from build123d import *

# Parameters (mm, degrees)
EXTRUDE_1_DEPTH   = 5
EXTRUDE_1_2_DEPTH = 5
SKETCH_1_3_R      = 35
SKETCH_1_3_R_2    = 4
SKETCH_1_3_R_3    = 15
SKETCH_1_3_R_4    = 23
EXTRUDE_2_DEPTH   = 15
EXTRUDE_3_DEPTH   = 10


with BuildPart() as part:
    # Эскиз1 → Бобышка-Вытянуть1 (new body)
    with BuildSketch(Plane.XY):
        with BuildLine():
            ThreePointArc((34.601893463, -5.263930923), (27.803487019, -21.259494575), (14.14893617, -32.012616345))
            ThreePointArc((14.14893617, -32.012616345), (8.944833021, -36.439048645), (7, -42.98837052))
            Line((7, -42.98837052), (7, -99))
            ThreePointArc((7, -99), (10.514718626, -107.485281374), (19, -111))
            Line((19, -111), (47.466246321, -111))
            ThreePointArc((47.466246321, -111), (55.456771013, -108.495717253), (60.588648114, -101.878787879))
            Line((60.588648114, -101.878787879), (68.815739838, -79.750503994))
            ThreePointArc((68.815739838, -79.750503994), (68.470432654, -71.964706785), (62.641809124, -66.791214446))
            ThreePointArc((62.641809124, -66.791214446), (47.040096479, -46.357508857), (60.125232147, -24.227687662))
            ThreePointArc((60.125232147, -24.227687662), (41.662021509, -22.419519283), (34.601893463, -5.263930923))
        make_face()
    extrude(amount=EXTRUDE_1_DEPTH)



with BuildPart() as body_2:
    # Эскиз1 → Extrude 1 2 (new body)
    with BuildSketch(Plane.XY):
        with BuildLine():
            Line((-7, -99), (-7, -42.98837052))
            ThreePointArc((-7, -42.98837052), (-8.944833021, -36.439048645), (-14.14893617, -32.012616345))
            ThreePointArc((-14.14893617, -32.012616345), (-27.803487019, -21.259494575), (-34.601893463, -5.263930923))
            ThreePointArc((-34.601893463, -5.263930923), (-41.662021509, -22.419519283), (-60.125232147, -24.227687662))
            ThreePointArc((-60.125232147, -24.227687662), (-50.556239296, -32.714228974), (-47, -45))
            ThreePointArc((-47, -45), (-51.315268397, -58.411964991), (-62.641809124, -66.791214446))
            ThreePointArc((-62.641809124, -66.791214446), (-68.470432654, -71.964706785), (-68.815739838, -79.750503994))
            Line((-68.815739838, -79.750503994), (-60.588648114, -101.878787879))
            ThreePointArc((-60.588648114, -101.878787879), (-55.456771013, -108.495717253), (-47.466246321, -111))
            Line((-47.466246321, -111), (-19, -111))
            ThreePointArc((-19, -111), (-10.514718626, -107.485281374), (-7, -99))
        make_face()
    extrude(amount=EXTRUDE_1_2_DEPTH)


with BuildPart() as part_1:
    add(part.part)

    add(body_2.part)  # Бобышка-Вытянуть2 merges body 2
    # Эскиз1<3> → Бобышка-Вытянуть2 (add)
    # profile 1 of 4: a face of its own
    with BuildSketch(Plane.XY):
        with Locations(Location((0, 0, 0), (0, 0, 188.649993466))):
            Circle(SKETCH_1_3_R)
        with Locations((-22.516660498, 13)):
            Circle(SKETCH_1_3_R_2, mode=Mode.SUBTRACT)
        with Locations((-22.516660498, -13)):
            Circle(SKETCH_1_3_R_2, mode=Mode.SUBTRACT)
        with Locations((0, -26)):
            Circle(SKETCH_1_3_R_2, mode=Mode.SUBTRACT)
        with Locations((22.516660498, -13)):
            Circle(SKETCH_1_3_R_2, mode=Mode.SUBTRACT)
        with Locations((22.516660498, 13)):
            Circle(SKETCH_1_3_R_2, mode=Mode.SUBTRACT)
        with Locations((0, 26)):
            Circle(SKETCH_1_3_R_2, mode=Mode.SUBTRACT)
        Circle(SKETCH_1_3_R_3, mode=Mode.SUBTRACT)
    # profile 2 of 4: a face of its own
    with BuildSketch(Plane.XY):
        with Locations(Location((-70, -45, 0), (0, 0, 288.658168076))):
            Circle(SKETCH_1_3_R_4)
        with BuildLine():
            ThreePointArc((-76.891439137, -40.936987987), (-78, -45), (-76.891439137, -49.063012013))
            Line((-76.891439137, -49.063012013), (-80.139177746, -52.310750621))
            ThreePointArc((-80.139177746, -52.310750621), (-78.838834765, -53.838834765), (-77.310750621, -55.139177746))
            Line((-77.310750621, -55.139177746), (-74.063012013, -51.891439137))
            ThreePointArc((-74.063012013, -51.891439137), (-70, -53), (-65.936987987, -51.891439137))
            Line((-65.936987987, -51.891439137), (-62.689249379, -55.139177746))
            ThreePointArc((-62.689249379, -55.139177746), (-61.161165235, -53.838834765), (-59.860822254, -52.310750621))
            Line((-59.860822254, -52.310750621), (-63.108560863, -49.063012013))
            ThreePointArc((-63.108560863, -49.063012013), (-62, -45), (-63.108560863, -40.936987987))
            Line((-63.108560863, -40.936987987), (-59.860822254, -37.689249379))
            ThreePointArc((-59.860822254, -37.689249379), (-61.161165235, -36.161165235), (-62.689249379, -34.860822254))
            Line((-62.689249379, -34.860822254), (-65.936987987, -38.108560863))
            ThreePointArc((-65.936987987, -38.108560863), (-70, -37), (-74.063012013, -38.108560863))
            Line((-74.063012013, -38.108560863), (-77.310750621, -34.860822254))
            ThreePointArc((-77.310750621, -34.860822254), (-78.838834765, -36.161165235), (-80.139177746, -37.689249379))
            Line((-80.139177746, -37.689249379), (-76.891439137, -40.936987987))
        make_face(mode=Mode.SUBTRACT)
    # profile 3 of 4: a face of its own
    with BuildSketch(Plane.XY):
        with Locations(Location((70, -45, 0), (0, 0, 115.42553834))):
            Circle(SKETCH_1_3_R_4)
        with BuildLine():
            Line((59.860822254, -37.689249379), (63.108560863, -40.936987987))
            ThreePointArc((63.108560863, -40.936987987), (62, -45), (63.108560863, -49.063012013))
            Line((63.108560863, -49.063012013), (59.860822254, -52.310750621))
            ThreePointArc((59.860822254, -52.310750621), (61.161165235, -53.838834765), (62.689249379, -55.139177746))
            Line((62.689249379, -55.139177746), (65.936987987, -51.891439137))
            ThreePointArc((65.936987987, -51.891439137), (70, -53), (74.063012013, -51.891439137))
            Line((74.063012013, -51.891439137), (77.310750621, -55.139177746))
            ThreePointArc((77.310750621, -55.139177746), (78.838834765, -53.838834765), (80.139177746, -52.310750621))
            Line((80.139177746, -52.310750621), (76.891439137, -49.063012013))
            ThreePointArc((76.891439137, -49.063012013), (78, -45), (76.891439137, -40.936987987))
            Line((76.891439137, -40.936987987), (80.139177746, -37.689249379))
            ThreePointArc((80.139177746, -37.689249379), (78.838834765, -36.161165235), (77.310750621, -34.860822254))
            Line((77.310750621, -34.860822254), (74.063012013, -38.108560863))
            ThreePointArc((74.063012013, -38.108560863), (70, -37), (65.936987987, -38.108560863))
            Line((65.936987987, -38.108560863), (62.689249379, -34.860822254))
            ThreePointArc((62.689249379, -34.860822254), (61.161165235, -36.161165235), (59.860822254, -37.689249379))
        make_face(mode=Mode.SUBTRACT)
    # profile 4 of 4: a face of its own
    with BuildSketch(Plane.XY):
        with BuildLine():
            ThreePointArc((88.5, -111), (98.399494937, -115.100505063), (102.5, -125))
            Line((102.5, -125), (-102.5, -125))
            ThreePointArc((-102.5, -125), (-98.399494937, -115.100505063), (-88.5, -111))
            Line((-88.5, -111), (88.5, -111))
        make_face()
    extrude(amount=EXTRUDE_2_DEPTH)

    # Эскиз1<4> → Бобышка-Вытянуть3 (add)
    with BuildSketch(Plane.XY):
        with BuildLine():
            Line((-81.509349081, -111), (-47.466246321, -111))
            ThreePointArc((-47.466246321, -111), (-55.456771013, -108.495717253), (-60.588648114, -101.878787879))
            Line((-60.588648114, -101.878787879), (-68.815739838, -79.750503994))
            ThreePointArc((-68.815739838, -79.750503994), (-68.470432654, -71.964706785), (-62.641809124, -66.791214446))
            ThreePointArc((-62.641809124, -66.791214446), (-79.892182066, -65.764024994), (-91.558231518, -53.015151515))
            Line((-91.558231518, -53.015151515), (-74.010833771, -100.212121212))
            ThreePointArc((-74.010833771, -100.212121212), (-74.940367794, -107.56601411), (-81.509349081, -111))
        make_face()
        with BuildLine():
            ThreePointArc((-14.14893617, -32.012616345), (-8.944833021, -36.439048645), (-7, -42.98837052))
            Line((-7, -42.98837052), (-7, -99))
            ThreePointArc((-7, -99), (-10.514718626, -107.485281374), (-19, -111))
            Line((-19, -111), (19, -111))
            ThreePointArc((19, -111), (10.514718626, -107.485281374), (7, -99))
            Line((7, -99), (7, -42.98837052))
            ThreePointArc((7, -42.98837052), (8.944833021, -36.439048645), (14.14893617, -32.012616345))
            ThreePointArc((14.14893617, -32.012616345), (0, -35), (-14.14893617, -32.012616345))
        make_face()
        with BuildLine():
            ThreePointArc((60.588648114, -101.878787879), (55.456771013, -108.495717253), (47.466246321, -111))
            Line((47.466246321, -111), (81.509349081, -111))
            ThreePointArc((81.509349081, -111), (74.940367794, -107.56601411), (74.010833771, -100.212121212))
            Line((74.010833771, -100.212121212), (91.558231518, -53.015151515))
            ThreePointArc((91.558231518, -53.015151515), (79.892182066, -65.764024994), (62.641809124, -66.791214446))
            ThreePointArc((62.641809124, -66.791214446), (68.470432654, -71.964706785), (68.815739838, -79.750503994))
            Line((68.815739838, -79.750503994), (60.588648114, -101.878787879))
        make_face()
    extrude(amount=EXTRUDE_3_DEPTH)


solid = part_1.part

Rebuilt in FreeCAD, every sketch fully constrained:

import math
import FreeCAD as App
import Part
import Sketcher
from FreeCAD import Vector
Q = App.Units.Quantity

doc = App.newDocument("Part")
body = doc.addObject("PartDesign::Body", "Body")

sketch1 = body.newObject("Sketcher::SketchObject", "Sketch")
sketch1.AttachmentSupport = (doc.getObject("XY_Plane"), [""])
sketch1.MapMode = "FlatFace"
sketch1.addGeometry([
    Part.ArcOfCircle(Part.Circle(Vector(0, 0, 0), Vector(0, 0, 1), 35), math.radians(-66.15553), math.radians(-8.649993)),
    Part.ArcOfCircle(Part.Circle(Vector(19, -42.988371, 0), Vector(0, 0, 1), 12), math.radians(113.84447), math.radians(180)),
    Part.LineSegment(Vector(7, -42.988371, 0), Vector(7, -99, 0)),
    Part.ArcOfCircle(Part.Circle(Vector(19, -99, 0), Vector(0, 0, 1), 12), math.radians(-180), math.radians(-90)),
    Part.LineSegment(Vector(19, -111, 0), Vector(47.466246, -111, 0)),
    Part.ArcOfCircle(Part.Circle(Vector(47.466246, -97, 0), Vector(0, 0, 1), 14), math.radians(-90), math.radians(-20.39467)),
    Part.LineSegment(Vector(60.588648, -101.878788, 0), Vector(68.81574, -79.750504, 0)),
    Part.ArcOfCircle(Part.Circle(Vector(59.442596, -76.265656, 0), Vector(0, 0, 1), 10), math.radians(-20.39467), math.radians(71.341832)),
    Part.ArcOfCircle(Part.Circle(Vector(70, -45, 0), Vector(0, 0, 1), 23), math.radians(115.425538), math.radians(251.341832)),
    Part.ArcOfCircle(Part.Circle(Vector(52.397153, -7.971095, 0), Vector(0, 0, 1), 18), math.radians(171.350007), math.radians(295.425538)),
], False)
sketch1.addConstraint([
    Sketcher.Constraint("Tangent", 0, 1, 1, 1),
    Sketcher.Constraint("Tangent", 1, 2, 2, 1),
    Sketcher.Constraint("Tangent", 2, 2, 3, 1),
    Sketcher.Constraint("Tangent", 3, 2, 4, 1),
    Sketcher.Constraint("Tangent", 4, 2, 5, 1),
    Sketcher.Constraint("Tangent", 5, 2, 6, 1),
    Sketcher.Constraint("Tangent", 6, 2, 7, 1),
    Sketcher.Constraint("Tangent", 7, 2, 8, 2),
    Sketcher.Constraint("Tangent", 8, 1, 9, 2),
    Sketcher.Constraint("Tangent", 9, 1, 0, 2),
    Sketcher.Constraint("Vertical", 2),
    Sketcher.Constraint("Horizontal", 4),
    Sketcher.Constraint("Coincident", 0, 3, -1, 1),
    Sketcher.Constraint("Equal", 1, 3),
    Sketcher.Constraint("Radius", 0, Q("35 mm")),
    Sketcher.Constraint("Radius", 1, Q("12 mm")),
    Sketcher.Constraint("Radius", 5, Q("14 mm")),
    Sketcher.Constraint("Radius", 7, Q("10 mm")),
    Sketcher.Constraint("Radius", 8, Q("23 mm")),
    Sketcher.Constraint("Radius", 9, Q("18 mm")),
    Sketcher.Constraint("DistanceX", -1, 1, 1, 3, Q("19 mm")),
    Sketcher.Constraint("DistanceY", 3, 3, -1, 1, Q("99 mm")),
    Sketcher.Constraint("DistanceX", -1, 1, 8, 3, Q("70 mm")),
    Sketcher.Constraint("DistanceY", 8, 3, -1, 1, Q("45 mm")),
    Sketcher.Constraint("DistanceX", 5, 3, 5, 2, Q("13.122402 mm")),
    Sketcher.Constraint("DistanceX", 4, 1, 4, 2, Q("28.466246 mm")),
])
pad1 = body.newObject("PartDesign::Pad", "Pad")
pad1.Profile = sketch1
pad1.Length = 5
body2 = doc.addObject("PartDesign::Body", "Body001")

sketch2 = body2.newObject("Sketcher::SketchObject", "Sketch001")
sketch2.AttachmentSupport = (doc.getObject("XY_Plane001"), [""])
sketch2.MapMode = "FlatFace"
sketch2.addGeometry([
    Part.LineSegment(Vector(-7, -99, 0), Vector(-7, -42.988371, 0)),
    Part.ArcOfCircle(Part.Circle(Vector(-19, -42.988371, 0), Vector(0, 0, 1), 12), math.radians(0), math.radians(66.15553)),
    Part.ArcOfCircle(Part.Circle(Vector(0, 0, 0), Vector(0, 0, 1), 35), math.radians(-171.350007), math.radians(-113.84447)),
    Part.ArcOfCircle(Part.Circle(Vector(-52.397153, -7.971095, 0), Vector(0, 0, 1), 18), math.radians(-115.425538), math.radians(8.649993)),
    Part.ArcOfCircle(Part.Circle(Vector(-70, -45, 0), Vector(0, 0, 1), 23), math.radians(0), math.radians(64.574462)),
    Part.ArcOfCircle(Part.Circle(Vector(-70, -45, 0), Vector(0, 0, 1), 23), math.radians(-71.341832), math.radians(0)),
    Part.ArcOfCircle(Part.Circle(Vector(-59.442596, -76.265656, 0), Vector(0, 0, 1), 10), math.radians(108.658168), math.radians(200.39467)),
    Part.LineSegment(Vector(-68.81574, -79.750504, 0), Vector(-60.588648, -101.878788, 0)),
    Part.ArcOfCircle(Part.Circle(Vector(-47.466246, -97, 0), Vector(0, 0, 1), 14), math.radians(-159.60533), math.radians(-90)),
    Part.LineSegment(Vector(-47.466246, -111, 0), Vector(-19, -111, 0)),
    Part.ArcOfCircle(Part.Circle(Vector(-19, -99, 0), Vector(0, 0, 1), 12), math.radians(-90), math.radians(0)),
], False)
sketch2.addConstraint([
    Sketcher.Constraint("Tangent", 0, 2, 1, 1),
    Sketcher.Constraint("Tangent", 1, 2, 2, 2),
    Sketcher.Constraint("Tangent", 2, 1, 3, 2),
    Sketcher.Constraint("Tangent", 3, 1, 4, 2),
    Sketcher.Constraint("Tangent", 4, 1, 5, 2),
    Sketcher.Constraint("Tangent", 5, 1, 6, 1),
    Sketcher.Constraint("Tangent", 6, 2, 7, 1),
    Sketcher.Constraint("Tangent", 7, 2, 8, 1),
    Sketcher.Constraint("Tangent", 8, 2, 9, 1),
    Sketcher.Constraint("Tangent", 9, 2, 10, 1),
    Sketcher.Constraint("Tangent", 10, 2, 0, 1),
    Sketcher.Constraint("Vertical", 0),
    Sketcher.Constraint("Horizontal", 9),
    Sketcher.Constraint("Coincident", 2, 3, -1, 1),
    Sketcher.Constraint("Equal", 4, 5),
    Sketcher.Constraint("Equal", 1, 10),
    Sketcher.Constraint("Horizontal", 5, 3, 4, 1),
    Sketcher.Constraint("Radius", 1, Q("12 mm")),
    Sketcher.Constraint("Radius", 2, Q("35 mm")),
    Sketcher.Constraint("Radius", 3, Q("18 mm")),
    Sketcher.Constraint("Radius", 4, Q("23 mm")),
    Sketcher.Constraint("Radius", 6, Q("10 mm")),
    Sketcher.Constraint("Radius", 8, Q("14 mm")),
    Sketcher.Constraint("DistanceX", 1, 3, -1, 1, Q("19 mm")),
    Sketcher.Constraint("DistanceX", 4, 3, -1, 1, Q("70 mm")),
    Sketcher.Constraint("DistanceY", 4, 3, -1, 1, Q("45 mm")),
    Sketcher.Constraint("DistanceY", 8, 3, -1, 1, Q("97 mm")),
    Sketcher.Constraint("DistanceX", 7, 2, 8, 3, Q("13.122402 mm")),
    Sketcher.Constraint("DistanceX", 9, 1, 9, 2, Q("28.466246 mm")),
])
pad2 = body2.newObject("PartDesign::Pad", "Pad001")
pad2.Profile = sketch2
pad2.Length = 5
body.AllowCompound = True
doc.recompute()

boolean = body.newObject("PartDesign::Boolean", "Boolean")
boolean.Type = "Fuse"
boolean.addObjects([body2])

sketch3 = body.newObject("Sketcher::SketchObject", "Sketch002")
sketch3.AttachmentSupport = (doc.getObject("XY_Plane"), [""])
sketch3.MapMode = "FlatFace"
sketch3.addGeometry([
    Part.Circle(Vector(0, 0, 0), Vector(0, 0, 1), 35),
    Part.Circle(Vector(0, 26, 0), Vector(0, 0, 1), 4),
    Part.Circle(Vector(22.51666, 13, 0), Vector(0, 0, 1), 4),
    Part.Circle(Vector(-22.51666, 13, 0), Vector(0, 0, 1), 4),
    Part.Circle(Vector(22.51666, -13, 0), Vector(0, 0, 1), 4),
    Part.Circle(Vector(0, 0, 0), Vector(0, 0, 1), 15),
    Part.Circle(Vector(-22.51666, -13, 0), Vector(0, 0, 1), 4),
    Part.Circle(Vector(0, -26, 0), Vector(0, 0, 1), 4),
    Part.Circle(Vector(-70, -45, 0), Vector(0, 0, 1), 23),
    Part.ArcOfCircle(Part.Circle(Vector(-70, -45, 0), Vector(0, 0, 1), 8), math.radians(149.477512), math.radians(210.522488)),
    Part.LineSegment(Vector(-76.891439, -40.936988, 0), Vector(-80.139178, -37.689249, 0)),
    Part.ArcOfCircle(Part.Circle(Vector(-70, -45, 0), Vector(0, 0, 1), 12.5), math.radians(125.793104), math.radians(144.206896)),
    Part.LineSegment(Vector(-77.310751, -34.860822, 0), Vector(-74.063012, -38.108561, 0)),
    Part.ArcOfCircle(Part.Circle(Vector(-70, -45, 0), Vector(0, 0, 1), 8), math.radians(59.477512), math.radians(120.522488)),
    Part.LineSegment(Vector(-65.936988, -38.108561, 0), Vector(-62.689249, -34.860822, 0)),
    Part.ArcOfCircle(Part.Circle(Vector(-70, -45, 0), Vector(0, 0, 1), 12.5), math.radians(35.793104), math.radians(54.206896)),
    Part.LineSegment(Vector(-59.860822, -37.689249, 0), Vector(-63.108561, -40.936988, 0)),
    Part.ArcOfCircle(Part.Circle(Vector(-70, -45, 0), Vector(0, 0, 1), 8), math.radians(-30.522488), math.radians(30.522488)),
    Part.LineSegment(Vector(-63.108561, -49.063012, 0), Vector(-59.860822, -52.310751, 0)),
    Part.ArcOfCircle(Part.Circle(Vector(-70, -45, 0), Vector(0, 0, 1), 12.5), math.radians(-54.206896), math.radians(-35.793104)),
    Part.LineSegment(Vector(-62.689249, -55.139178, 0), Vector(-65.936988, -51.891439, 0)),
    Part.ArcOfCircle(Part.Circle(Vector(-70, -45, 0), Vector(0, 0, 1), 8), math.radians(-120.522488), math.radians(-59.477512)),
    Part.LineSegment(Vector(-74.063012, -51.891439, 0), Vector(-77.310751, -55.139178, 0)),
    Part.ArcOfCircle(Part.Circle(Vector(-70, -45, 0), Vector(0, 0, 1), 12.5), math.radians(-144.206896), math.radians(-125.793104)),
    Part.LineSegment(Vector(-80.139178, -52.310751, 0), Vector(-76.891439, -49.063012, 0)),
    Part.Circle(Vector(70, -45, 0), Vector(0, 0, 1), 23),
    Part.LineSegment(Vector(63.108561, -40.936988, 0), Vector(59.860822, -37.689249, 0)),
    Part.ArcOfCircle(Part.Circle(Vector(70, -45, 0), Vector(0, 0, 1), 12.5), math.radians(125.793104), math.radians(144.206896)),
    Part.LineSegment(Vector(62.689249, -34.860822, 0), Vector(65.936988, -38.108561, 0)),
    Part.ArcOfCircle(Part.Circle(Vector(70, -45, 0), Vector(0, 0, 1), 8), math.radians(59.477512), math.radians(120.522488)),
    Part.LineSegment(Vector(74.063012, -38.108561, 0), Vector(77.310751, -34.860822, 0)),
    Part.ArcOfCircle(Part.Circle(Vector(70, -45, 0), Vector(0, 0, 1), 12.5), math.radians(35.793104), math.radians(54.206896)),
    Part.LineSegment(Vector(80.139178, -37.689249, 0), Vector(76.891439, -40.936988, 0)),
    Part.ArcOfCircle(Part.Circle(Vector(70, -45, 0), Vector(0, 0, 1), 8), math.radians(-30.522488), math.radians(30.522488)),
    Part.LineSegment(Vector(76.891439, -49.063012, 0), Vector(80.139178, -52.310751, 0)),
    Part.ArcOfCircle(Part.Circle(Vector(70, -45, 0), Vector(0, 0, 1), 12.5), math.radians(-54.206896), math.radians(-35.793104)),
    Part.LineSegment(Vector(77.310751, -55.139178, 0), Vector(74.063012, -51.891439, 0)),
    Part.ArcOfCircle(Part.Circle(Vector(70, -45, 0), Vector(0, 0, 1), 8), math.radians(-120.522488), math.radians(-59.477512)),
    Part.LineSegment(Vector(65.936988, -51.891439, 0), Vector(62.689249, -55.139178, 0)),
    Part.ArcOfCircle(Part.Circle(Vector(70, -45, 0), Vector(0, 0, 1), 12.5), math.radians(-144.206896), math.radians(-125.793104)),
    Part.LineSegment(Vector(59.860822, -52.310751, 0), Vector(63.108561, -49.063012, 0)),
    Part.ArcOfCircle(Part.Circle(Vector(70, -45, 0), Vector(0, 0, 1), 8), math.radians(149.477512), math.radians(210.522488)),
    Part.ArcOfCircle(Part.Circle(Vector(88.5, -125, 0), Vector(0, 0, 1), 14), math.radians(0), math.radians(90)),
    Part.LineSegment(Vector(88.5, -111, 0), Vector(-88.5, -111, 0)),
    Part.ArcOfCircle(Part.Circle(Vector(-88.5, -125, 0), Vector(0, 0, 1), 14), math.radians(90), math.radians(180)),
    Part.LineSegment(Vector(-102.5, -125, 0), Vector(102.5, -125, 0)),
], False)
sketch3.addConstraint([
    Sketcher.Constraint("Coincident", 9, 1, 10, 1),
    Sketcher.Constraint("Coincident", 10, 2, 11, 2),
    Sketcher.Constraint("Coincident", 11, 1, 12, 1),
    Sketcher.Constraint("Coincident", 12, 2, 13, 2),
    Sketcher.Constraint("Coincident", 13, 1, 14, 1),
    Sketcher.Constraint("Coincident", 14, 2, 15, 2),
    Sketcher.Constraint("Coincident", 15, 1, 16, 1),
    Sketcher.Constraint("Coincident", 16, 2, 17, 2),
    Sketcher.Constraint("Coincident", 17, 1, 18, 1),
    Sketcher.Constraint("Coincident", 18, 2, 19, 2),
    Sketcher.Constraint("Coincident", 19, 1, 20, 1),
    Sketcher.Constraint("Coincident", 20, 2, 21, 2),
    Sketcher.Constraint("Coincident", 21, 1, 22, 1),
    Sketcher.Constraint("Coincident", 22, 2, 23, 2),
    Sketcher.Constraint("Coincident", 23, 1, 24, 1),
    Sketcher.Constraint("Coincident", 24, 2, 9, 2),
    Sketcher.Constraint("Coincident", 26, 2, 27, 2),
    Sketcher.Constraint("Coincident", 27, 1, 28, 1),
    Sketcher.Constraint("Coincident", 28, 2, 29, 2),
    Sketcher.Constraint("Coincident", 29, 1, 30, 1),
    Sketcher.Constraint("Coincident", 30, 2, 31, 2),
    Sketcher.Constraint("Coincident", 31, 1, 32, 1),
    Sketcher.Constraint("Coincident", 32, 2, 33, 2),
    Sketcher.Constraint("Coincident", 33, 1, 34, 1),
    Sketcher.Constraint("Coincident", 34, 2, 35, 2),
    Sketcher.Constraint("Coincident", 35, 1, 36, 1),
    Sketcher.Constraint("Coincident", 36, 2, 37, 2),
    Sketcher.Constraint("Coincident", 37, 1, 38, 1),
    Sketcher.Constraint("Coincident", 38, 2, 39, 2),
    Sketcher.Constraint("Coincident", 39, 1, 40, 1),
    Sketcher.Constraint("Coincident", 40, 2, 41, 2),
    Sketcher.Constraint("Coincident", 41, 1, 26, 1),
    Sketcher.Constraint("Tangent", 42, 2, 43, 1),
    Sketcher.Constraint("Tangent", 43, 2, 44, 1),
    Sketcher.Constraint("Coincident", 44, 2, 45, 1),
    Sketcher.Constraint("Coincident", 45, 2, 42, 1),
    Sketcher.Constraint("Horizontal", 43),
    Sketcher.Constraint("Horizontal", 45),
    Sketcher.Constraint("Coincident", 0, 3, -1, 1),
    Sketcher.Constraint("Coincident", 5, 3, -1, 1),
    Sketcher.Constraint("Coincident", 9, 3, 8, 3),
    Sketcher.Constraint("Coincident", 11, 3, 8, 3),
    Sketcher.Constraint("Coincident", 13, 3, 8, 3),
    Sketcher.Constraint("Coincident", 15, 3, 8, 3),
    Sketcher.Constraint("Coincident", 17, 3, 8, 3),
    Sketcher.Constraint("Coincident", 19, 3, 8, 3),
    Sketcher.Constraint("Coincident", 21, 3, 8, 3),
    Sketcher.Constraint("Coincident", 23, 3, 8, 3),
    Sketcher.Constraint("Coincident", 27, 3, 25, 3),
    Sketcher.Constraint("Coincident", 29, 3, 25, 3),
    Sketcher.Constraint("Coincident", 31, 3, 25, 3),
    Sketcher.Constraint("Coincident", 33, 3, 25, 3),
    Sketcher.Constraint("Coincident", 35, 3, 25, 3),
    Sketcher.Constraint("Coincident", 37, 3, 25, 3),
    Sketcher.Constraint("Coincident", 39, 3, 25, 3),
    Sketcher.Constraint("Coincident", 41, 3, 25, 3),
    Sketcher.Constraint("Equal", 1, 2),
    Sketcher.Constraint("Equal", 2, 3),
    Sketcher.Constraint("Equal", 3, 4),
    Sketcher.Constraint("Equal", 4, 6),
    Sketcher.Constraint("Equal", 6, 7),
    Sketcher.Constraint("Equal", 9, 13),
    Sketcher.Constraint("Equal", 11, 15),
    Sketcher.Constraint("Equal", 13, 17),
    Sketcher.Constraint("Equal", 15, 19),
    Sketcher.Constraint("Equal", 17, 21),
    Sketcher.Constraint("Equal", 19, 23),
    Sketcher.Constraint("Equal", 8, 25),
    Sketcher.Constraint("Equal", 23, 27),
    Sketcher.Constraint("Equal", 21, 29),
    Sketcher.Constraint("Equal", 27, 31),
    Sketcher.Constraint("Equal", 29, 33),
    Sketcher.Constraint("Equal", 31, 35),
    Sketcher.Constraint("Equal", 33, 37),
    Sketcher.Constraint("Equal", 35, 39),
    Sketcher.Constraint("Equal", 37, 41),
    Sketcher.Constraint("Equal", 42, 44),
    Sketcher.Constraint("Symmetric", 3, 3, 4, 3, -1, 1),
    Sketcher.Constraint("Symmetric", 2, 3, 6, 3, -1, 1),
    Sketcher.Constraint("Symmetric", 1, 3, 7, 3, -1, 1),
    Sketcher.Constraint("Symmetric", 2, 3, 3, 3, -2),
    Sketcher.Constraint("Symmetric", 8, 3, 25, 3, -2),
    Sketcher.Constraint("PointOnObject", 1, 3, -2),
    Sketcher.Constraint("Parallel", 10, 12),
    Sketcher.Constraint("Perpendicular", 12, 14),
    Sketcher.Constraint("Parallel", 14, 16),
    Sketcher.Constraint("Perpendicular", 16, 18),
    Sketcher.Constraint("Parallel", 18, 20),
    Sketcher.Constraint("Perpendicular", 20, 22),
    Sketcher.Constraint("Parallel", 22, 24),
    Sketcher.Constraint("Perpendicular", 24, 26),
    Sketcher.Constraint("Parallel", 26, 28),
    Sketcher.Constraint("Perpendicular", 28, 30),
    Sketcher.Constraint("Parallel", 30, 32),
    Sketcher.Constraint("Perpendicular", 32, 34),
    Sketcher.Constraint("Parallel", 34, 36),
    Sketcher.Constraint("Perpendicular", 36, 38),
    Sketcher.Constraint("Parallel", 38, 40),
    Sketcher.Constraint("Horizontal", 12, 2, 13, 1),
    Sketcher.Constraint("Horizontal", 11, 1, 14, 2),
    Sketcher.Constraint("Horizontal", 10, 2, 15, 1),
    Sketcher.Constraint("Horizontal", 20, 2, 21, 1),
    Sketcher.Constraint("Horizontal", 18, 2, 23, 1),
    Sketcher.Constraint("Horizontal", 15, 1, 26, 2),
    Sketcher.Constraint("Horizontal", 14, 2, 27, 1),
    Sketcher.Constraint("Horizontal", 28, 2, 29, 1),
    Sketcher.Constraint("Horizontal", 26, 2, 31, 1),
    Sketcher.Constraint("Horizontal", 24, 2, 33, 1),
    Sketcher.Constraint("Horizontal", 22, 2, 35, 1),
    Sketcher.Constraint("Horizontal", 36, 2, 37, 1),
    Sketcher.Constraint("Horizontal", 34, 2, 39, 1),
    Sketcher.Constraint("Horizontal", 42, 3, 44, 2),
    Sketcher.Constraint("Vertical", 16, 2, 17, 1),
    Sketcher.Constraint("Vertical", 14, 2, 19, 1),
    Sketcher.Constraint("Equal", 10, 12),
    Sketcher.Constraint("Diameter", 0, Q("70 mm")),
    Sketcher.Constraint("Diameter", 1, Q("8 mm")),
    Sketcher.Constraint("Diameter", 5, Q("30 mm")),
    Sketcher.Constraint("Diameter", 8, Q("46 mm")),
    Sketcher.Constraint("Radius", 9, Q("8 mm")),
    Sketcher.Constraint("Radius", 42, Q("14 mm")),
    Sketcher.Constraint("Radius", 11, Q("12.5 mm")),
    Sketcher.Constraint("DistanceX", 43, 2, 43, 1, Q("177 mm")),
    Sketcher.Constraint("DistanceY", -1, 1, 1, 3, Q("26 mm")),
    Sketcher.Constraint("DistanceY", -1, 1, 2, 3, Q("13 mm")),
    Sketcher.Constraint("DistanceX", 8, 3, -1, 1, Q("70 mm")),
    Sketcher.Constraint("DistanceY", 8, 3, -1, 1, Q("45 mm")),
    Sketcher.Constraint("DistanceY", 42, 3, -1, 1, Q("125 mm")),
    Sketcher.Constraint("DistanceX", -1, 1, 42, 3, Q("88.5 mm")),
    Sketcher.Constraint("DistanceX", -1, 1, 2, 3, Q("22.51666 mm")),
    Sketcher.Constraint("DistanceX", 9, 1, -1, 1, Q("76.891439 mm")),
])
pad3 = body.newObject("PartDesign::Pad", "Pad002")
pad3.Profile = sketch3
pad3.Length = 15

sketch4 = body.newObject("Sketcher::SketchObject", "Sketch003")
sketch4.AttachmentSupport = (doc.getObject("XY_Plane"), [""])
sketch4.MapMode = "FlatFace"
sketch4.addGeometry([
    Part.LineSegment(Vector(-81.509349, -111, 0), Vector(-47.466246, -111, 0)),
    Part.ArcOfCircle(Part.Circle(Vector(-47.466246, -97, 0), Vector(0, 0, 1), 14), math.radians(-159.60533), math.radians(-90)),
    Part.LineSegment(Vector(-60.588648, -101.878788, 0), Vector(-68.81574, -79.750504, 0)),
    Part.ArcOfCircle(Part.Circle(Vector(-59.442596, -76.265656, 0), Vector(0, 0, 1), 10), math.radians(108.658168), math.radians(200.39467)),
    Part.ArcOfCircle(Part.Circle(Vector(-70, -45, 0), Vector(0, 0, 1), 23), math.radians(-159.60533), math.radians(-71.341832)),
    Part.LineSegment(Vector(-91.558232, -53.015152, 0), Vector(-74.010834, -100.212121, 0)),
    Part.ArcOfCircle(Part.Circle(Vector(-81.509349, -103, 0), Vector(0, 0, 1), 8), math.radians(-90), math.radians(20.39467)),
    Part.ArcOfCircle(Part.Circle(Vector(-19, -42.988371, 0), Vector(0, 0, 1), 12), math.radians(0), math.radians(66.15553)),
    Part.LineSegment(Vector(-7, -42.988371, 0), Vector(-7, -99, 0)),
    Part.ArcOfCircle(Part.Circle(Vector(-19, -99, 0), Vector(0, 0, 1), 12), math.radians(-90), math.radians(0)),
    Part.LineSegment(Vector(-19, -111, 0), Vector(19, -111, 0)),
    Part.ArcOfCircle(Part.Circle(Vector(19, -99, 0), Vector(0, 0, 1), 12), math.radians(-180), math.radians(-90)),
    Part.LineSegment(Vector(7, -99, 0), Vector(7, -42.988371, 0)),
    Part.ArcOfCircle(Part.Circle(Vector(19, -42.988371, 0), Vector(0, 0, 1), 12), math.radians(113.84447), math.radians(180)),
    Part.ArcOfCircle(Part.Circle(Vector(0, 0, 0), Vector(0, 0, 1), 35), math.radians(-113.84447), math.radians(-66.15553)),
    Part.ArcOfCircle(Part.Circle(Vector(47.466246, -97, 0), Vector(0, 0, 1), 14), math.radians(-90), math.radians(-20.39467)),
    Part.LineSegment(Vector(47.466246, -111, 0), Vector(81.509349, -111, 0)),
    Part.ArcOfCircle(Part.Circle(Vector(81.509349, -103, 0), Vector(0, 0, 1), 8), math.radians(159.60533), math.radians(270)),
    Part.LineSegment(Vector(74.010834, -100.212121, 0), Vector(91.558232, -53.015152, 0)),
    Part.ArcOfCircle(Part.Circle(Vector(70, -45, 0), Vector(0, 0, 1), 23), math.radians(-108.658168), math.radians(-20.39467)),
    Part.ArcOfCircle(Part.Circle(Vector(59.442596, -76.265656, 0), Vector(0, 0, 1), 10), math.radians(-20.39467), math.radians(71.341832)),
    Part.LineSegment(Vector(68.81574, -79.750504, 0), Vector(60.588648, -101.878788, 0)),
], False)
sketch4.addConstraint([
    Sketcher.Constraint("Tangent", 0, 2, 1, 2),
    Sketcher.Constraint("Tangent", 1, 1, 2, 1),
    Sketcher.Constraint("Tangent", 2, 2, 3, 2),
    Sketcher.Constraint("Tangent", 3, 1, 4, 2),
    Sketcher.Constraint("Tangent", 4, 1, 5, 1),
    Sketcher.Constraint("Tangent", 5, 2, 6, 2),
    Sketcher.Constraint("Tangent", 6, 1, 0, 1),
    Sketcher.Constraint("Tangent", 7, 1, 8, 1),
    Sketcher.Constraint("Tangent", 8, 2, 9, 2),
    Sketcher.Constraint("Tangent", 9, 1, 10, 1),
    Sketcher.Constraint("Tangent", 10, 2, 11, 2),
    Sketcher.Constraint("Tangent", 11, 1, 12, 1),
    Sketcher.Constraint("Tangent", 12, 2, 13, 2),
    Sketcher.Constraint("Tangent", 13, 1, 14, 2),
    Sketcher.Constraint("Tangent", 14, 1, 7, 2),
    Sketcher.Constraint("Tangent", 15, 1, 16, 1),
    Sketcher.Constraint("Tangent", 16, 2, 17, 2),
    Sketcher.Constraint("Tangent", 17, 1, 18, 1),
    Sketcher.Constraint("Tangent", 18, 2, 19, 2),
    Sketcher.Constraint("Tangent", 19, 1, 20, 2),
    Sketcher.Constraint("Tangent", 20, 1, 21, 1),
    Sketcher.Constraint("Tangent", 21, 2, 15, 2),
    Sketcher.Constraint("Horizontal", 0),
    Sketcher.Constraint("Vertical", 8),
    Sketcher.Constraint("Horizontal", 10),
    Sketcher.Constraint("Vertical", 12),
    Sketcher.Constraint("Horizontal", 16),
    Sketcher.Constraint("Coincident", 14, 3, -1, 1),
    Sketcher.Constraint("Equal", 7, 9),
    Sketcher.Constraint("Equal", 9, 11),
    Sketcher.Constraint("Equal", 11, 13),
    Sketcher.Constraint("Equal", 1, 15),
    Sketcher.Constraint("Equal", 6, 17),
    Sketcher.Constraint("Equal", 4, 19),
    Sketcher.Constraint("Equal", 3, 20),
    Sketcher.Constraint("Symmetric", 1, 3, 15, 3, -2),
    Sketcher.Constraint("Symmetric", 4, 3, 19, 3, -2),
    Sketcher.Constraint("Parallel", 2, 5),
    Sketcher.Constraint("Parallel", 18, 21),
    Sketcher.Constraint("Horizontal", 7, 3, 13, 3),
    Sketcher.Constraint("Horizontal", 3, 3, 20, 3),
    Sketcher.Constraint("Horizontal", 6, 1, 9, 1),
    Sketcher.Constraint("Radius", 1, Q("14 mm")),
    Sketcher.Constraint("Radius", 3, Q("10 mm")),
    Sketcher.Constraint("Radius", 4, Q("23 mm")),
    Sketcher.Constraint("Radius", 6, Q("8 mm")),
    Sketcher.Constraint("Radius", 7, Q("12 mm")),
    Sketcher.Constraint("Radius", 14, Q("35 mm")),
    Sketcher.Constraint("DistanceX", 10, 1, 10, 2, Q("38 mm")),
    Sketcher.Constraint("DistanceY", 1, 3, -1, 1, Q("97 mm")),
    Sketcher.Constraint("DistanceX", 4, 3, -1, 1, Q("70 mm")),
    Sketcher.Constraint("DistanceY", 4, 3, -1, 1, Q("45 mm")),
    Sketcher.Constraint("DistanceX", 1, 1, 1, 3, Q("13.122402 mm")),
    Sketcher.Constraint("DistanceX", 6, 3, 1, 1, Q("20.920701 mm")),
])
pad4 = body.newObject("PartDesign::Pad", "Pad003")
pad4.Profile = sketch4
pad4.Length = 10

doc.recompute()
